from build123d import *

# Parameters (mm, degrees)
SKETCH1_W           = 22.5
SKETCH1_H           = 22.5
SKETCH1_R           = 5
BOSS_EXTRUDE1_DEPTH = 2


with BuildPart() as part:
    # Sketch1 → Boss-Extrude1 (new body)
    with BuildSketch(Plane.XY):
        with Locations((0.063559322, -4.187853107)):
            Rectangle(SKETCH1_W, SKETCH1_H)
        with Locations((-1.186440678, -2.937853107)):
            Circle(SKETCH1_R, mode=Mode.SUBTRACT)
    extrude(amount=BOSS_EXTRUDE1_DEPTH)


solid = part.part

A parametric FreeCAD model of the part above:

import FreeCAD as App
import Part
import Sketcher
Q = App.Units.Quantity


def add_polygon(sketch, points):
    """Adds a closed chain of lines whose ends are joined by coincident constraints."""
    first, n = sketch.GeometryCount, len(points)
    for a, b in zip(points, points[1:] + points[:1]):
        sketch.addGeometry(Part.LineSegment(App.Vector(*a, 0), App.Vector(*b, 0)), False)
    for i in range(n):
        sketch.addConstraint(Sketcher.Constraint("Coincident", first + i, 2, first + (i + 1) % n, 1))

doc = App.newDocument("Part")
params = doc.addObject("Spreadsheet::Sheet", "Params")
for row, (alias, value) in enumerate([
    ("sketch1_diameter", "10 mm"),
    ("sketch1_width", "22.5 mm"),
    ("pad1_length", "2 mm"),
], start=1):
    params.set(f"A{row}", alias)
    params.set(f"B{row}", "=" + value)
    params.setAlias(f"B{row}", alias)

body = doc.addObject("PartDesign::Body", "Body")

# Sketch on XY plane
sketch1 = doc.addObject("Sketcher::SketchObject", "Sketch")
body.addObject(sketch1)
sketch1.AttachmentSupport = (doc.XY_Plane, [""])
sketch1.MapMode = "FlatFace"
add_polygon(sketch1, [(-11.186441, 7.062147), (-11.186441, -15.437853), (11.313559, -15.437853), (11.313559, 7.062147)])  # lines 0-3
sketch1.addGeometry(Part.Circle(App.Vector(-1.186441, -2.937853, 0), App.Vector(0, 0, 1), 5), False)  # 4
sketch1.addConstraint(Sketcher.Constraint("Vertical", 0))
sketch1.addConstraint(Sketcher.Constraint("Horizontal", 1))
sketch1.addConstraint(Sketcher.Constraint("Vertical", 2))
sketch1.addConstraint(Sketcher.Constraint("Horizontal", 3))
sketch1.addConstraint(Sketcher.Constraint("Equal", 3, 0))
sketch1.addConstraint(Sketcher.Constraint("Diameter", 4, Q("10 mm")))
sketch1.addConstraint(Sketcher.Constraint("DistanceX", 1, 1, 1, 2, Q("22.5 mm")))
sketch1.addConstraint(Sketcher.Constraint("DistanceX", 0, 2, 4, 3, Q("10 mm")))
sketch1.addConstraint(Sketcher.Constraint("DistanceY", 4, 3, 2, 2, Q("10 mm")))
sketch1.addConstraint(Sketcher.Constraint("DistanceX", 4, 3, -1, 1, Q("1.186441 mm")))
sketch1.addConstraint(Sketcher.Constraint("DistanceY", 4, 3, -1, 1, Q("2.937853 mm")))
sketch1.setExpression("Constraints[9]", "Params.sketch1_diameter")
sketch1.setExpression("Constraints[10]", "Params.sketch1_width")
pad1 = doc.addObject("PartDesign::Pad", "Pad")
body.addObject(pad1)
pad1.Profile = sketch1
pad1.setExpression("Length", "Params.pad1_length")

doc.recompute()
